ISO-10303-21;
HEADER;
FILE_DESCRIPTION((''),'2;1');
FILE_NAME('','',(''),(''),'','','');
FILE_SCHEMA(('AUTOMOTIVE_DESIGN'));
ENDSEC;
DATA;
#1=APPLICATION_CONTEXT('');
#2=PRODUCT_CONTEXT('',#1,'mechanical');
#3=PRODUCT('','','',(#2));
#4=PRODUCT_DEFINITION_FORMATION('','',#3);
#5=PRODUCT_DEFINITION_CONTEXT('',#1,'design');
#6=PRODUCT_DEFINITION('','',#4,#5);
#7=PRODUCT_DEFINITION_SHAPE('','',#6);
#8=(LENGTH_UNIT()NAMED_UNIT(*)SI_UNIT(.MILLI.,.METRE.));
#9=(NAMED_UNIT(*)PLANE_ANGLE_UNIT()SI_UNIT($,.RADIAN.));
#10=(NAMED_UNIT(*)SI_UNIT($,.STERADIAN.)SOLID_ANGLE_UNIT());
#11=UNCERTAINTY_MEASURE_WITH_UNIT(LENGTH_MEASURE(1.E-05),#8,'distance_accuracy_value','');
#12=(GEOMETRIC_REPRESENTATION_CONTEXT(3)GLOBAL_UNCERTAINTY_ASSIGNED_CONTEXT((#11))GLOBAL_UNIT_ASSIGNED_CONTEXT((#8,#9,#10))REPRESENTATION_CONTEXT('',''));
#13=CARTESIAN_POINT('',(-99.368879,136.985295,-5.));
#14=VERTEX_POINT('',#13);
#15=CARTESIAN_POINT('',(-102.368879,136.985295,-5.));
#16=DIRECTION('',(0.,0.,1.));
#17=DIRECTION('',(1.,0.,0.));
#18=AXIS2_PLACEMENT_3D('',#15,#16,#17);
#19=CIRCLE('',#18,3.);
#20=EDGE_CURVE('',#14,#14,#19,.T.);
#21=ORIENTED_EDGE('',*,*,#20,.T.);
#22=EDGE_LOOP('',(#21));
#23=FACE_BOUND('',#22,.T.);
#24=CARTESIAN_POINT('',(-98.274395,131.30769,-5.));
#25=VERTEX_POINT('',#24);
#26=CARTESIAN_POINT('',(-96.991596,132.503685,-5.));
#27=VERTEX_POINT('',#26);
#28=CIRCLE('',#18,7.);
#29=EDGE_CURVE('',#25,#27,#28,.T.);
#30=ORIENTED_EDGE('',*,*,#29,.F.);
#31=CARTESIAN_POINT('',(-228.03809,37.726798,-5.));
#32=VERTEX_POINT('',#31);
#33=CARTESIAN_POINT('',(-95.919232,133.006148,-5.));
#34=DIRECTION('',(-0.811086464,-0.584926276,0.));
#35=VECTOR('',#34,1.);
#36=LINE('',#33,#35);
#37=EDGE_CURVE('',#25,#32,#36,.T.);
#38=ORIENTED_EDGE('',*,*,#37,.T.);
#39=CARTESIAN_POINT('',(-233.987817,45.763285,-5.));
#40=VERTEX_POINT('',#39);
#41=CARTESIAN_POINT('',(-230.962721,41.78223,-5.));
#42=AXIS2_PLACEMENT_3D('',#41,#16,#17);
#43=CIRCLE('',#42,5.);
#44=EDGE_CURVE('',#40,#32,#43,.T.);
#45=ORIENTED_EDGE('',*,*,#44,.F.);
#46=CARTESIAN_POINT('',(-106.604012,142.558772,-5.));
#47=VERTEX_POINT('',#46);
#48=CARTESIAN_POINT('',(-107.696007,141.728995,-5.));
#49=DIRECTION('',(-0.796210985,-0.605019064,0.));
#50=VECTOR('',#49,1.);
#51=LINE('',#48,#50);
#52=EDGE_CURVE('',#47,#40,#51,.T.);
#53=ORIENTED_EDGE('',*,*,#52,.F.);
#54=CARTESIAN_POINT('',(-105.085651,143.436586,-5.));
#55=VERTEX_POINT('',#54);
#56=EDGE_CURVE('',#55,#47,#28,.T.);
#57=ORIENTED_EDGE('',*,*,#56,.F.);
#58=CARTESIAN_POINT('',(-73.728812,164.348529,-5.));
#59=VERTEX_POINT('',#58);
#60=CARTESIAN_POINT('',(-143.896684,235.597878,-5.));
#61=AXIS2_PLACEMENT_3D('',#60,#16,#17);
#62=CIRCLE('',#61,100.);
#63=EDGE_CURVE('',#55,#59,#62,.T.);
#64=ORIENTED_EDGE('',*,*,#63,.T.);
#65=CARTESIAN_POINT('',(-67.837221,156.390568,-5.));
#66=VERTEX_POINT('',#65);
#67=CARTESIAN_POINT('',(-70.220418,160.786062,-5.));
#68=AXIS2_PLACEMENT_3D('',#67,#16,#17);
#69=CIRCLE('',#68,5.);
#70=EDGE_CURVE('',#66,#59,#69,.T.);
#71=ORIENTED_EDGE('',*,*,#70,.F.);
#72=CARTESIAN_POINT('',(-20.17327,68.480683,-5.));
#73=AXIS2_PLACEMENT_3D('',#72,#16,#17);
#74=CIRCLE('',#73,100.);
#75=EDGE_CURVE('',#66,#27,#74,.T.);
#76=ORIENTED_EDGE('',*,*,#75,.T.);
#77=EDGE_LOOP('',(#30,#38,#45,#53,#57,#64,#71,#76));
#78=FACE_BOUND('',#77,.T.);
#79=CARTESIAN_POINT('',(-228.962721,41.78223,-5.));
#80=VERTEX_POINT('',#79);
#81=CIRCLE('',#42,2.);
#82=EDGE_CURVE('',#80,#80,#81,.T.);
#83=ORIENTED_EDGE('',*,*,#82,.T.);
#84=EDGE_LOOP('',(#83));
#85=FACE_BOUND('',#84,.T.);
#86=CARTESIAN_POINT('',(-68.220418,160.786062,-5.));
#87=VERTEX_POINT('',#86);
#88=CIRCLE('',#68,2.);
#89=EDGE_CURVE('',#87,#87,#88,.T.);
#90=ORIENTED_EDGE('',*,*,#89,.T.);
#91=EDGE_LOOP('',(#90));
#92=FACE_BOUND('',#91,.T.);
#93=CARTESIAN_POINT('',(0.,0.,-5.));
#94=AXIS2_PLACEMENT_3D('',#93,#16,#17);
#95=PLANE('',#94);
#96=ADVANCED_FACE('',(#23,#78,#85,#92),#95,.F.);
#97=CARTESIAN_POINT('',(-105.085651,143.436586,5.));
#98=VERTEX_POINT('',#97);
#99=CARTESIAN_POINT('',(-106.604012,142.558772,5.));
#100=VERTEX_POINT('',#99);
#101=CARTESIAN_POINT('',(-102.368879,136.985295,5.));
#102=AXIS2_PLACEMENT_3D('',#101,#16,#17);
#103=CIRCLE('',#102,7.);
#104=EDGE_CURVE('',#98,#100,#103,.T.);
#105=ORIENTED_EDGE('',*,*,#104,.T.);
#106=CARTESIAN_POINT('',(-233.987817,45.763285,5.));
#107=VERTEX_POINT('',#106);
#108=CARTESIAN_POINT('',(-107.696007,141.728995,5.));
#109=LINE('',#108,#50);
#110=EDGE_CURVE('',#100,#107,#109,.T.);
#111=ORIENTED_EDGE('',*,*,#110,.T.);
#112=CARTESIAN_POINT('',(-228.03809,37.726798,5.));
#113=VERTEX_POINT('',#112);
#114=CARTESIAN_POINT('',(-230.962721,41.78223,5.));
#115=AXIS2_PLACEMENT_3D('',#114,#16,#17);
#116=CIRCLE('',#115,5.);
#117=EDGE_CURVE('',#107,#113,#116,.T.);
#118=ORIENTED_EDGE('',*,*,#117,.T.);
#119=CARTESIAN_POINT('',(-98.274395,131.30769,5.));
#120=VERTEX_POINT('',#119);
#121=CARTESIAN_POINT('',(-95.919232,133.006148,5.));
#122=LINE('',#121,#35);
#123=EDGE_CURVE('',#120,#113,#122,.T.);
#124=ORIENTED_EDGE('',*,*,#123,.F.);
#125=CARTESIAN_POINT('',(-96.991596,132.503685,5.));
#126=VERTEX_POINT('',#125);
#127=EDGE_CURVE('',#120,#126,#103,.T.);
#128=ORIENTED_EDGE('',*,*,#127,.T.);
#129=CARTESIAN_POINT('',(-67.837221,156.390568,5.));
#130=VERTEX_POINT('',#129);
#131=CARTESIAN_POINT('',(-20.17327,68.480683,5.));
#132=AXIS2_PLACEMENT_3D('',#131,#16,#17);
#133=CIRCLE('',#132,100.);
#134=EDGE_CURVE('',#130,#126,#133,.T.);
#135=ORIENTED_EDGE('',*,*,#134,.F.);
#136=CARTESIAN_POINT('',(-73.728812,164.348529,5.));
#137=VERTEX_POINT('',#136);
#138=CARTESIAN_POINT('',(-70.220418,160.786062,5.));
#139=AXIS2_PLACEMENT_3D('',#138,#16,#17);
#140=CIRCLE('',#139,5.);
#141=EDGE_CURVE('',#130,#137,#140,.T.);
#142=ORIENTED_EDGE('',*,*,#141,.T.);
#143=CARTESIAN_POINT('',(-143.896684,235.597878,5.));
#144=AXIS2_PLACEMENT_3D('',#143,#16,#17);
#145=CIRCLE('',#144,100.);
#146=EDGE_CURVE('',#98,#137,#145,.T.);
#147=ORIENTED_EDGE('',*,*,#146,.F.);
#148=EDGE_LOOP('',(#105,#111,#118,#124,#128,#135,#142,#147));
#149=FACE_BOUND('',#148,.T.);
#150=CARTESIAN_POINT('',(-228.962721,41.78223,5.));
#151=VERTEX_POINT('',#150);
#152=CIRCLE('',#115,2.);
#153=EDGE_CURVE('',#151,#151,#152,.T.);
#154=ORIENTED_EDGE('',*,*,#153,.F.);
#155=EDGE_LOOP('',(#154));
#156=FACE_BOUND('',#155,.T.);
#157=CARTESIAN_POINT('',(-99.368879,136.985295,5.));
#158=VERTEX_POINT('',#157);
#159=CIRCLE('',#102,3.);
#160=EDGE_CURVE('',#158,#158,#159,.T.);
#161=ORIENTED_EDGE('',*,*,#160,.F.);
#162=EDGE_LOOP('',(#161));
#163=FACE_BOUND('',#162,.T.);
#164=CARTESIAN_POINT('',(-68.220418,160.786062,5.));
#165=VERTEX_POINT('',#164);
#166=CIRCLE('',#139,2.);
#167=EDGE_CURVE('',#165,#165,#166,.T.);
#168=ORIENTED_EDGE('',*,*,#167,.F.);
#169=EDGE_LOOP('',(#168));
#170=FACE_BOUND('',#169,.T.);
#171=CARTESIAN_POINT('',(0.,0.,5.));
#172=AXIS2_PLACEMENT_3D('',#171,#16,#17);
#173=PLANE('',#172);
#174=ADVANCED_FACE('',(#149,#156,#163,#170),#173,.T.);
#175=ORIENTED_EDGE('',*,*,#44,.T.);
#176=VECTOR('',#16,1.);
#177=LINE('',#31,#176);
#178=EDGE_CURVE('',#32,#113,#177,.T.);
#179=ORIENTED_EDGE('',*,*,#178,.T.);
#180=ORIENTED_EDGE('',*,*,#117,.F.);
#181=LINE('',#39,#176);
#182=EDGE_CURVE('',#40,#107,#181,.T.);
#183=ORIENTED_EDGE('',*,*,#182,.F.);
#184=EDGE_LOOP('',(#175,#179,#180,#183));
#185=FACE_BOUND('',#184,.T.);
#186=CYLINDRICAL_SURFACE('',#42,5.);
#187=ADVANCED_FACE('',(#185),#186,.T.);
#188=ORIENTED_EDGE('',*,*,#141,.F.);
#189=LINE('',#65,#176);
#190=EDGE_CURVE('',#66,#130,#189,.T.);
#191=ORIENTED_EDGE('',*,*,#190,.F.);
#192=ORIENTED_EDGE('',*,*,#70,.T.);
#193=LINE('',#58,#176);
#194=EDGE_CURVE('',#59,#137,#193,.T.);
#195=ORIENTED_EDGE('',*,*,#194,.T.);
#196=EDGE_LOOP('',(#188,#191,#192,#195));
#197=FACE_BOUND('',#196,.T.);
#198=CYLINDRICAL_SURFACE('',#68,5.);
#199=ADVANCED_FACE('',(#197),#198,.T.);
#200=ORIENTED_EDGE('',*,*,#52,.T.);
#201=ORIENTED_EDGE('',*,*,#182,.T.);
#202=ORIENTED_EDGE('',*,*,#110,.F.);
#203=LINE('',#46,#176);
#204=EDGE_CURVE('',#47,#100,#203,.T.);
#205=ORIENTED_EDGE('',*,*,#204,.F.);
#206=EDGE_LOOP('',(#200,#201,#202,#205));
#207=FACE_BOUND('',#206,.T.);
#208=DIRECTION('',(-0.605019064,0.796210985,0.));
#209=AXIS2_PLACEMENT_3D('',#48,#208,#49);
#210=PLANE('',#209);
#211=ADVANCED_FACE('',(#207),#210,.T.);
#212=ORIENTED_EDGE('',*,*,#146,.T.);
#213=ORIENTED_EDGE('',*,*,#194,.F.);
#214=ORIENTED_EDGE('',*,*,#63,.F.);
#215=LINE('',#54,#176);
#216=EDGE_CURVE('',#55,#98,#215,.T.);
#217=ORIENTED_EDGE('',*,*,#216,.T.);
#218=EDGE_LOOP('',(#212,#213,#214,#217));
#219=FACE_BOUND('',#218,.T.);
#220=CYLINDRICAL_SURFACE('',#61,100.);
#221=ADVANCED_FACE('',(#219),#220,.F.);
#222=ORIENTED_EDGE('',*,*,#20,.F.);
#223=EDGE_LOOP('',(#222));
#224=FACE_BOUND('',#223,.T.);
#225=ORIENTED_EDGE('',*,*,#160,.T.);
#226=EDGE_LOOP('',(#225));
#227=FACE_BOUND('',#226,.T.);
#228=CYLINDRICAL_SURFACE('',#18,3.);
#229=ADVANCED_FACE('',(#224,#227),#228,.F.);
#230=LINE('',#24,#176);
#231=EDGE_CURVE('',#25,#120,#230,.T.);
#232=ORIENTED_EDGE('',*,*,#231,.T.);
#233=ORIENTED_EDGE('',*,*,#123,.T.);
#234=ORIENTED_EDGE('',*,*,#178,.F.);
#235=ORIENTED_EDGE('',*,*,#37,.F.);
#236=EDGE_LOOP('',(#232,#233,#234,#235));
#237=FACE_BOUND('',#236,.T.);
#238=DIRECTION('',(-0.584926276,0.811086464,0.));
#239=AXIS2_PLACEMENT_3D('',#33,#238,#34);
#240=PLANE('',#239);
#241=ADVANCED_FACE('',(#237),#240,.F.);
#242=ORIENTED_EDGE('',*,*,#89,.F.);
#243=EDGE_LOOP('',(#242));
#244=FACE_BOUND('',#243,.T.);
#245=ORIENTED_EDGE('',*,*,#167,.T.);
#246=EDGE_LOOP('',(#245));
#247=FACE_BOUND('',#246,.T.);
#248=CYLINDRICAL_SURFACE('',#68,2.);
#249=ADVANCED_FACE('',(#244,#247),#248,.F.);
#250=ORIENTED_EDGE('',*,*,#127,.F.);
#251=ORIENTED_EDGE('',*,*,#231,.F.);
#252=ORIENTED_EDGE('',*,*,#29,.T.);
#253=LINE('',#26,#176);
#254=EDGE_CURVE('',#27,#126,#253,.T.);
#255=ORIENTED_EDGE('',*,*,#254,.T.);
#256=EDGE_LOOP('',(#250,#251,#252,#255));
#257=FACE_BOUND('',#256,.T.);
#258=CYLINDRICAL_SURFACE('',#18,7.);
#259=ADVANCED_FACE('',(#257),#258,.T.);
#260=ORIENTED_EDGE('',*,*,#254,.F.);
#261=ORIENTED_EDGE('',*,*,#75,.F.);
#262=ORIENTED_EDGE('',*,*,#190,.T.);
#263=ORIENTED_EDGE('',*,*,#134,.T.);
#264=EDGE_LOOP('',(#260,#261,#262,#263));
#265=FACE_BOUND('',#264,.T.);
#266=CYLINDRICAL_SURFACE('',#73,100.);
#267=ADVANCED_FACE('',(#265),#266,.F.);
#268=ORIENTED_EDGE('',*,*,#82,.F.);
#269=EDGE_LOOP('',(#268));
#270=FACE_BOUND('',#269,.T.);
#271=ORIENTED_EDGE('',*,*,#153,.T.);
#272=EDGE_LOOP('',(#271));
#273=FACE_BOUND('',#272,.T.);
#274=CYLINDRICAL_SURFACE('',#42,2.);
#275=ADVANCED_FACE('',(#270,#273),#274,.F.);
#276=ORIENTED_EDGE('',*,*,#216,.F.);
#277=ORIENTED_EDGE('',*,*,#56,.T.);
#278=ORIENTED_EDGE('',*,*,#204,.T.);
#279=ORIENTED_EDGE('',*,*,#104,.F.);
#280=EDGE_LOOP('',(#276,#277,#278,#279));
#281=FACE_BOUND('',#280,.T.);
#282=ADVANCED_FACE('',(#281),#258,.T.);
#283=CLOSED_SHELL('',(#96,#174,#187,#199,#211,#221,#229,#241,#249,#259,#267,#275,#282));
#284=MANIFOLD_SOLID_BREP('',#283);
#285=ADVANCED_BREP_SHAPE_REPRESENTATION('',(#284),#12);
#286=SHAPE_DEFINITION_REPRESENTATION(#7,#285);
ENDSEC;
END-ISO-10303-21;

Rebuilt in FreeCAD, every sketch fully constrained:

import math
import FreeCAD as App
import Part
import Sketcher

V = App.Vector
Q = App.Units.Quantity

doc = App.newDocument("Part")
body = doc.addObject("PartDesign::Body", "Body")

# Sketch on XY plane
sketch1 = body.newObject("Sketcher::SketchObject", "Sketch")
sketch1.AttachmentSupport = (doc.getObject("XY_Plane"), [""])
sketch1.MapMode = "FlatFace"
sketch1.addGeometry([
    Part.LineSegment(V(-228.03809, 37.726798, 0), V(-98.274395, 131.30769, 0)),  # 0
    Part.ArcOfCircle(Part.Circle(V(-102.368879, 136.985295, 0), V(0, 0, 1), 7), math.radians(-54.202218), math.radians(-39.808974)),  # 1
    Part.ArcOfCircle(Part.Circle(V(-20.17327, 68.480683, 0), V(0, 0, 1), 100), math.radians(118.466152), math.radians(140.191026)),  # 2
    Part.ArcOfCircle(Part.Circle(V(-70.220418, 160.786062, 0), V(0, 0, 1), 5), math.radians(-61.533848), math.radians(134.561844)),  # 3
    Part.ArcOfCircle(Part.Circle(V(-143.896684, 235.597878, 0), V(0, 0, 1), 100), math.radians(-67.16303), math.radians(-45.438156)),  # 4
    Part.ArcOfCircle(Part.Circle(V(-102.368879, 136.985295, 0), V(0, 0, 1), 7), math.radians(112.83697), math.radians(127.230214)),  # 5
    Part.LineSegment(V(-106.604012, 142.558772, 0), V(-233.987817, 45.763285, 0)),  # 6
    Part.ArcOfCircle(Part.Circle(V(-230.962721, 41.78223, 0), V(0, 0, 1), 5), math.radians(127.230214), math.radians(305.797782)),  # 7
    Part.Circle(V(-230.962721, 41.78223, 0), V(0, 0, 1), 2),  # 8
    Part.Circle(V(-102.368879, 136.985295, 0), V(0, 0, 1), 3),  # 9
    Part.Circle(V(-70.220418, 160.786062, 0), V(0, 0, 1), 2),  # 10
], False)
sketch1.addConstraint([
    Sketcher.Constraint("Tangent", 0, 2, 1, 1),
    Sketcher.Constraint("Tangent", 1, 2, 2, 2),
    Sketcher.Constraint("Tangent", 2, 1, 3, 1),
    Sketcher.Constraint("Tangent", 3, 2, 4, 2),
    Sketcher.Constraint("Tangent", 4, 1, 5, 1),
    Sketcher.Constraint("Tangent", 5, 2, 6, 1),
    Sketcher.Constraint("Tangent", 6, 2, 7, 1),
    Sketcher.Constraint("Tangent", 7, 2, 0, 1),
    Sketcher.Constraint("Coincident", 5, 3, 1, 3),
    Sketcher.Constraint("Coincident", 8, 3, 7, 3),
    Sketcher.Constraint("Coincident", 9, 3, 1, 3),
    Sketcher.Constraint("Coincident", 10, 3, 3, 3),
    Sketcher.Constraint("Equal", 2, 4),
    Sketcher.Constraint("Equal", 1, 5),
    Sketcher.Constraint("Equal", 3, 7),
    Sketcher.Constraint("Equal", 8, 10),
    Sketcher.Constraint("Diameter", 8, Q("4 mm")),
    Sketcher.Constraint("Diameter", 9, Q("6 mm")),
    Sketcher.Constraint("Radius", 1, Q("7 mm")),
    Sketcher.Constraint("Radius", 2, Q("100 mm")),
    Sketcher.Constraint("Radius", 3, Q("5 mm")),
    Sketcher.Constraint("Distance", 0, Q("159.9875 mm")),
    Sketcher.Constraint("DistanceX", 0, 2, 1, 2, Q("1.282799 mm")),
    Sketcher.Constraint("DistanceX", 1, 3, -1, 1, Q("102.368879 mm")),
    Sketcher.Constraint("DistanceX", 2, 3, -1, 1, Q("20.17327 mm")),
    Sketcher.Constraint("DistanceX", 3, 3, -1, 1, Q("70.220418 mm")),
    Sketcher.Constraint("DistanceY", -1, 1, 3, 3, Q("160.786062 mm")),
])
pad1 = body.newObject("PartDesign::Pad", "Pad")
pad1.Profile = sketch1
pad1.Type = "TwoLengths"
pad1.Length = 5
pad1.Length2 = 5

doc.recompute()
